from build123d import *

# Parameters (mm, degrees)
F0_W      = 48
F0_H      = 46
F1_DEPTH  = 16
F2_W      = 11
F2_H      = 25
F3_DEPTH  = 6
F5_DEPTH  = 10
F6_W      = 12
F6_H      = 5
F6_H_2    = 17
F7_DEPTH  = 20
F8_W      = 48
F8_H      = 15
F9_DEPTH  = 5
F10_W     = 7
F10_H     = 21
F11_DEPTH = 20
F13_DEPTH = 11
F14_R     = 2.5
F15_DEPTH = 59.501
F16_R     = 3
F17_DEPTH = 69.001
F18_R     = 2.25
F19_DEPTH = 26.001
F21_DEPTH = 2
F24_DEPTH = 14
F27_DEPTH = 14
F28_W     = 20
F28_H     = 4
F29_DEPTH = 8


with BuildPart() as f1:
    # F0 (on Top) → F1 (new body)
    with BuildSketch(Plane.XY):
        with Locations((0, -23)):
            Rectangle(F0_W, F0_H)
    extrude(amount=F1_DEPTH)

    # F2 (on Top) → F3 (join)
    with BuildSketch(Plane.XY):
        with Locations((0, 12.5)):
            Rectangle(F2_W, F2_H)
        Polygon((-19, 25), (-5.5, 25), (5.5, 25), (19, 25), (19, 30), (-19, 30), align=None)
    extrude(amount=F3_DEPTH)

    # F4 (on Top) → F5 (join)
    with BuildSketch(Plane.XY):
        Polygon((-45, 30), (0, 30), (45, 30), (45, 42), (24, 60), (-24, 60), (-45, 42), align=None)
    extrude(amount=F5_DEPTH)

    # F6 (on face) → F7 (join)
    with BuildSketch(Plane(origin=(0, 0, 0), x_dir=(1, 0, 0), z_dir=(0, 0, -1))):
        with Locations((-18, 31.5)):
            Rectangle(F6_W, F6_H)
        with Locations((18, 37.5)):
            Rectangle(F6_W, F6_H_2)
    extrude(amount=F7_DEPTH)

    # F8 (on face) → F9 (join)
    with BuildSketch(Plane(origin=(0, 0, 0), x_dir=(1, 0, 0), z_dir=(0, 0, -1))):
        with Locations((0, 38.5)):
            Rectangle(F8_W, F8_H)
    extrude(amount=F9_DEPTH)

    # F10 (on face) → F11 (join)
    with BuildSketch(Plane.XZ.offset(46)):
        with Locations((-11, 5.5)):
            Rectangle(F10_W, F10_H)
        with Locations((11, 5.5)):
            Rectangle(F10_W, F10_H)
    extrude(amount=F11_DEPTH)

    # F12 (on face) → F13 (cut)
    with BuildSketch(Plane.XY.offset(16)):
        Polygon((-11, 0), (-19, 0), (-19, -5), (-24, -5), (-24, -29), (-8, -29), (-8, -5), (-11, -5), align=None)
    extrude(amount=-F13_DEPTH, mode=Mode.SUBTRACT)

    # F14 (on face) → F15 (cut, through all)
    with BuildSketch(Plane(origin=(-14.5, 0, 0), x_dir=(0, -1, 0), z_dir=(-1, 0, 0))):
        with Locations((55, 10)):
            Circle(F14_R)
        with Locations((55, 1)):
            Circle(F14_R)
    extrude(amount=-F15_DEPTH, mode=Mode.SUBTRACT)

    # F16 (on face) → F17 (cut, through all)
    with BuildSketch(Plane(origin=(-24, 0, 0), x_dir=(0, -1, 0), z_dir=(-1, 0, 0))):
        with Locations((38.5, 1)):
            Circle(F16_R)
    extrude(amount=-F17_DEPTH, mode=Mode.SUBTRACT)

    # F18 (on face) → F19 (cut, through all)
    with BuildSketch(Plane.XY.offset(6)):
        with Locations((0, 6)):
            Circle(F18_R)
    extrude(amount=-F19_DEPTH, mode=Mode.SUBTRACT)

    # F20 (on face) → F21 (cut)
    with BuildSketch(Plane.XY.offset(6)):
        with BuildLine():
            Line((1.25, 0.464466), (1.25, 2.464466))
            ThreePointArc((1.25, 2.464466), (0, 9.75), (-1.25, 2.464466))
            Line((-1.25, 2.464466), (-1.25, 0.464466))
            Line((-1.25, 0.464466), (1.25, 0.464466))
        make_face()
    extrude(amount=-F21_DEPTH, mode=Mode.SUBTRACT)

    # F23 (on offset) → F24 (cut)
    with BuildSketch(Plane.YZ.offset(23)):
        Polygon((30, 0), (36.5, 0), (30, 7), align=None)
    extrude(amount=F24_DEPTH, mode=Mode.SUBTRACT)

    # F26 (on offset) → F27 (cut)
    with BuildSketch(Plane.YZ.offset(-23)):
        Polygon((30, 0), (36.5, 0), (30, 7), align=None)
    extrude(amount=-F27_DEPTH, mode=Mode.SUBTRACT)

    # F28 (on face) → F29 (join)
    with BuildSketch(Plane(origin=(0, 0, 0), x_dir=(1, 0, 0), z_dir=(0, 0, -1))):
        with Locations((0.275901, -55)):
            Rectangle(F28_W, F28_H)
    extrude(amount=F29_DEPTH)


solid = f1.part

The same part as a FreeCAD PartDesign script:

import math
import FreeCAD as App
import Part
import Sketcher
from FreeCAD import Vector


def add_polygon(sketch, points):
    """Adds a closed chain of lines whose ends are joined by coincident constraints."""
    first, n = sketch.GeometryCount, len(points)
    for a, b in zip(points, points[1:] + points[:1]):
        sketch.addGeometry(Part.LineSegment(App.Vector(*a, 0), App.Vector(*b, 0)), False)
    for i in range(n):
        sketch.addConstraint(Sketcher.Constraint("Coincident", first + i, 2, first + (i + 1) % n, 1))

doc = App.newDocument("Part")
body = doc.addObject("PartDesign::Body", "Body")

sketch1 = body.newObject("Sketcher::SketchObject", "Sketch")
sketch1.AttachmentSupport = (doc.getObject("XY_Plane"), [""])
sketch1.MapMode = "FlatFace"
add_polygon(sketch1, [(-24, 0), (-24, -46), (24, -46), (24, 0)])
sketch1.addConstraint(Sketcher.Constraint("Vertical", 0))
sketch1.addConstraint(Sketcher.Constraint("Horizontal", 1))
sketch1.addConstraint(Sketcher.Constraint("Vertical", 2))
sketch1.addConstraint(Sketcher.Constraint("Horizontal", 3))
sketch1.addConstraint(Sketcher.Constraint("Symmetric", 2, 2, 3, 2, -1, 1))
sketch1.addConstraint(Sketcher.Constraint("DistanceX", 1, 1, 1, 2, 48.0))
sketch1.addConstraint(Sketcher.Constraint("DistanceY", 0, 2, 0, 1, 46.0))
pad1 = body.newObject("PartDesign::Pad", "Pad")
pad1.Profile = sketch1
pad1.Length = 16

sketch2 = body.newObject("Sketcher::SketchObject", "Sketch001")
sketch2.AttachmentSupport = (doc.getObject("XY_Plane"), [""])
sketch2.MapMode = "FlatFace"
add_polygon(sketch2, [(-5.5, 25), (-5.5, 0), (5.5, 0), (5.5, 25), (19, 25), (19, 30), (-19, 30), (-19, 25)])
sketch2.addConstraint(Sketcher.Constraint("Vertical", 0))
sketch2.addConstraint(Sketcher.Constraint("Horizontal", 1))
sketch2.addConstraint(Sketcher.Constraint("Vertical", 2))
sketch2.addConstraint(Sketcher.Constraint("Horizontal", 3))
sketch2.addConstraint(Sketcher.Constraint("Vertical", 4))
sketch2.addConstraint(Sketcher.Constraint("Horizontal", 5))
sketch2.addConstraint(Sketcher.Constraint("Vertical", 6))
sketch2.addConstraint(Sketcher.Constraint("Horizontal", 7))
sketch2.addConstraint(Sketcher.Constraint("Symmetric", 0, 2, 1, 2, -1, 1))
sketch2.addConstraint(Sketcher.Constraint("Symmetric", 3, 2, 6, 2, -2))
sketch2.addConstraint(Sketcher.Constraint("DistanceX", 1, 1, 1, 2, 11.0))
sketch2.addConstraint(Sketcher.Constraint("DistanceX", 5, 2, 5, 1, 38.0))
sketch2.addConstraint(Sketcher.Constraint("DistanceY", 0, 2, 0, 1, 25.0))
sketch2.addConstraint(Sketcher.Constraint("DistanceY", 4, 1, 4, 2, 5.0))
pad2 = body.newObject("PartDesign::Pad", "Pad001")
pad2.Profile = sketch2
pad2.Length = 6

sketch3 = body.newObject("Sketcher::SketchObject", "Sketch002")
sketch3.AttachmentSupport = (doc.getObject("XY_Plane"), [""])
sketch3.MapMode = "FlatFace"
add_polygon(sketch3, [(-45, 30), (45, 30), (45, 42), (24, 60), (-24, 60), (-45, 42)])
sketch3.addConstraint(Sketcher.Constraint("Horizontal", 0))
sketch3.addConstraint(Sketcher.Constraint("Vertical", 1))
sketch3.addConstraint(Sketcher.Constraint("Horizontal", 3))
sketch3.addConstraint(Sketcher.Constraint("Vertical", 5))
sketch3.addConstraint(Sketcher.Constraint("Symmetric", 1, 2, 4, 2, -2))
sketch3.addConstraint(Sketcher.Constraint("Equal", 2, 4))
sketch3.addConstraint(Sketcher.Constraint("DistanceX", 0, 1, 0, 2, 90.0))
sketch3.addConstraint(Sketcher.Constraint("DistanceX", 3, 2, 3, 1, 48.0))
sketch3.addConstraint(Sketcher.Constraint("DistanceY", 1, 1, 1, 2, 12.0))
sketch3.addConstraint(Sketcher.Constraint("DistanceY", -1, 1, 0, 2, 30.0))
sketch3.addConstraint(Sketcher.Constraint("DistanceY", -1, 1, 2, 2, 60.0))
pad3 = body.newObject("PartDesign::Pad", "Pad002")
pad3.Profile = sketch3
pad3.Length = 10

sketch4 = body.newObject("Sketcher::SketchObject", "Sketch003")
sketch4.AttachmentSupport = (doc.getObject("XY_Plane"), [""])
sketch4.MapMode = "FlatFace"
add_polygon(sketch4, [(-24, -34), (-24, -29), (-12, -29), (-12, -34)])
add_polygon(sketch4, [(12, -46), (12, -29), (24, -29), (24, -46)])
sketch4.addConstraint(Sketcher.Constraint("Vertical", 0))
sketch4.addConstraint(Sketcher.Constraint("Horizontal", 1))
sketch4.addConstraint(Sketcher.Constraint("Vertical", 2))
sketch4.addConstraint(Sketcher.Constraint("Horizontal", 3))
sketch4.addConstraint(Sketcher.Constraint("Vertical", 4))
sketch4.addConstraint(Sketcher.Constraint("Horizontal", 5))
sketch4.addConstraint(Sketcher.Constraint("Vertical", 6))
sketch4.addConstraint(Sketcher.Constraint("Horizontal", 7))
sketch4.addConstraint(Sketcher.Constraint("Symmetric", 1, 2, 4, 2, -2))
sketch4.addConstraint(Sketcher.Constraint("Equal", 3, 5))
sketch4.addConstraint(Sketcher.Constraint("DistanceX", 1, 1, 1, 2, 12.0))
sketch4.addConstraint(Sketcher.Constraint("DistanceY", 0, 1, 0, 2, 5.0))
sketch4.addConstraint(Sketcher.Constraint("DistanceY", 4, 1, 4, 2, 17.0))
sketch4.addConstraint(Sketcher.Constraint("DistanceX", 0, 2, -1, 1, 24.0))
sketch4.addConstraint(Sketcher.Constraint("DistanceY", 0, 2, -1, 1, 29.0))
pad4 = body.newObject("PartDesign::Pad", "Pad003")
pad4.Profile = sketch4
pad4.Length = 20
pad4.Reversed = True

sketch5 = body.newObject("Sketcher::SketchObject", "Sketch004")
sketch5.AttachmentSupport = (doc.getObject("XY_Plane"), [""])
sketch5.MapMode = "FlatFace"
add_polygon(sketch5, [(-24, -46), (-24, -31), (24, -31), (24, -46)])
sketch5.addConstraint(Sketcher.Constraint("Vertical", 0))
sketch5.addConstraint(Sketcher.Constraint("Horizontal", 1))
sketch5.addConstraint(Sketcher.Constraint("Vertical", 2))
sketch5.addConstraint(Sketcher.Constraint("Horizontal", 3))
sketch5.addConstraint(Sketcher.Constraint("DistanceX", 1, 1, 1, 2, 48.0))
sketch5.addConstraint(Sketcher.Constraint("DistanceY", 0, 1, 0, 2, 15.0))
sketch5.addConstraint(Sketcher.Constraint("DistanceX", 0, 2, -1, 1, 24.0))
sketch5.addConstraint(Sketcher.Constraint("DistanceY", 0, 2, -1, 1, 31.0))
pad5 = body.newObject("PartDesign::Pad", "Pad004")
pad5.Profile = sketch5
pad5.Length = 5
pad5.Reversed = True

sketch6 = body.newObject("Sketcher::SketchObject", "Sketch005")
sketch6.AttachmentSupport = (doc.getObject("XZ_Plane"), [""])
sketch6.MapMode = "FlatFace"
sketch6.AttachmentOffset = App.Placement(Vector(0, 0, 46), App.Rotation())
add_polygon(sketch6, [(-14.5, 16), (-14.5, -5), (-7.5, -5), (-7.5, 16)])
add_polygon(sketch6, [(7.5, 16), (7.5, -5), (14.5, -5), (14.5, 16)])
sketch6.addConstraint(Sketcher.Constraint("Vertical", 0))
sketch6.addConstraint(Sketcher.Constraint("Horizontal", 1))
sketch6.addConstraint(Sketcher.Constraint("Vertical", 2))
sketch6.addConstraint(Sketcher.Constraint("Horizontal", 3))
sketch6.addConstraint(Sketcher.Constraint("Vertical", 4))
sketch6.addConstraint(Sketcher.Constraint("Horizontal", 5))
sketch6.addConstraint(Sketcher.Constraint("Vertical", 6))
sketch6.addConstraint(Sketcher.Constraint("Horizontal", 7))
sketch6.addConstraint(Sketcher.Constraint("Symmetric", 1, 2, 4, 2, -2))
sketch6.addConstraint(Sketcher.Constraint("Symmetric", 3, 2, 6, 2, -2))
sketch6.addConstraint(Sketcher.Constraint("DistanceX", 1, 1, 1, 2, 7.0))
sketch6.addConstraint(Sketcher.Constraint("DistanceY", 0, 2, 0, 1, 21.0))
sketch6.addConstraint(Sketcher.Constraint("DistanceY", 0, 2, -1, 1, 5.0))
sketch6.addConstraint(Sketcher.Constraint("DistanceX", 1, 2, 4, 2, 15.0))
pad6 = body.newObject("PartDesign::Pad", "Pad005")
pad6.Profile = sketch6
pad6.Length = 20

sketch7 = body.newObject("Sketcher::SketchObject", "Sketch006")
sketch7.AttachmentSupport = (doc.getObject("XY_Plane"), [""])
sketch7.MapMode = "FlatFace"
sketch7.AttachmentOffset = App.Placement(Vector(0, 0, 16), App.Rotation())
add_polygon(sketch7, [(-11, 0), (-19, 0), (-19, -5), (-24, -5), (-24, -29), (-8, -29), (-8, -5), (-11, -5)])
sketch7.addConstraint(Sketcher.Constraint("Horizontal", 0))
sketch7.addConstraint(Sketcher.Constraint("Vertical", 1))
sketch7.addConstraint(Sketcher.Constraint("Horizontal", 2))
sketch7.addConstraint(Sketcher.Constraint("Vertical", 3))
sketch7.addConstraint(Sketcher.Constraint("Horizontal", 4))
sketch7.addConstraint(Sketcher.Constraint("Vertical", 5))
sketch7.addConstraint(Sketcher.Constraint("Horizontal", 6))
sketch7.addConstraint(Sketcher.Constraint("Vertical", 7))
sketch7.addConstraint(Sketcher.Constraint("PointOnObject", 0, 2, -1))
sketch7.addConstraint(Sketcher.Constraint("Horizontal", 2, 2, 5, 2))
sketch7.addConstraint(Sketcher.Constraint("Equal", 2, 1))
sketch7.addConstraint(Sketcher.Constraint("DistanceX", 0, 2, 0, 1, 8.0))
sketch7.addConstraint(Sketcher.Constraint("DistanceX", 2, 2, 2, 1, 5.0))
sketch7.addConstraint(Sketcher.Constraint("DistanceX", 4, 1, 4, 2, 16.0))
sketch7.addConstraint(Sketcher.Constraint("DistanceY", 3, 2, 3, 1, 24.0))
sketch7.addConstraint(Sketcher.Constraint("DistanceX", 0, 2, -1, 1, 19.0))
pocket1 = body.newObject("PartDesign::Pocket", "Pocket")
pocket1.Profile = sketch7
pocket1.Length = 11

sketch8 = body.newObject("Sketcher::SketchObject", "Sketch007")
sketch8.AttachmentSupport = (doc.getObject("YZ_Plane"), [""])
sketch8.MapMode = "FlatFace"
sketch8.AttachmentOffset = App.Placement(Vector(0, 0, -14.5), App.Rotation())
sketch8.addGeometry(Part.Circle(Vector(-55, 10, 0), Vector(0, 0, 1), 2.5), False)
sketch8.addGeometry(Part.Circle(Vector(-55, 1, 0), Vector(0, 0, 1), 2.5), False)
sketch8.addConstraint(Sketcher.Constraint("Equal", 0, 1))
sketch8.addConstraint(Sketcher.Constraint("Vertical", 0, 3, 1, 3))
sketch8.addConstraint(Sketcher.Constraint("Diameter", 0, 5.0))
sketch8.addConstraint(Sketcher.Constraint("DistanceX", 0, 3, -1, 1, 55.0))
sketch8.addConstraint(Sketcher.Constraint("DistanceY", -1, 1, 0, 3, 10.0))
sketch8.addConstraint(Sketcher.Constraint("DistanceY", -1, 1, 1, 3, 1.0))
pocket2 = body.newObject("PartDesign::Pocket", "Pocket001")
pocket2.Profile = sketch8
pocket2.Type = "ThroughAll"
pocket2.Reversed = True

sketch9 = body.newObject("Sketcher::SketchObject", "Sketch008")
sketch9.AttachmentSupport = (doc.getObject("YZ_Plane"), [""])
sketch9.MapMode = "FlatFace"
sketch9.AttachmentOffset = App.Placement(Vector(0, 0, -24), App.Rotation())
sketch9.addGeometry(Part.Circle(Vector(-38.5, 1, 0), Vector(0, 0, 1), 3), False)
sketch9.addConstraint(Sketcher.Constraint("Diameter", 0, 6.0))
sketch9.addConstraint(Sketcher.Constraint("DistanceY", -1, 1, 0, 3, 1.0))
sketch9.addConstraint(Sketcher.Constraint("DistanceX", 0, 3, -1, 1, 38.5))
pocket3 = body.newObject("PartDesign::Pocket", "Pocket002")
pocket3.Profile = sketch9
pocket3.Type = "ThroughAll"
pocket3.Reversed = True

sketch10 = body.newObject("Sketcher::SketchObject", "Sketch009")
sketch10.AttachmentSupport = (doc.getObject("XY_Plane"), [""])
sketch10.MapMode = "FlatFace"
sketch10.AttachmentOffset = App.Placement(Vector(0, 0, 6), App.Rotation())
sketch10.addGeometry(Part.Circle(Vector(0, 6, 0), Vector(0, 0, 1), 2.25), False)
sketch10.addConstraint(Sketcher.Constraint("PointOnObject", 0, 3, -2))
sketch10.addConstraint(Sketcher.Constraint("Diameter", 0, 4.5))
sketch10.addConstraint(Sketcher.Constraint("DistanceY", -1, 1, 0, 3, 6.0))
pocket4 = body.newObject("PartDesign::Pocket", "Pocket003")
pocket4.Profile = sketch10
pocket4.Type = "ThroughAll"

sketch11 = body.newObject("Sketcher::SketchObject", "Sketch010")
sketch11.AttachmentSupport = (doc.getObject("XY_Plane"), [""])
sketch11.MapMode = "FlatFace"
sketch11.AttachmentOffset = App.Placement(Vector(0, 0, 6), App.Rotation())
sketch11.addGeometry(Part.LineSegment(Vector(1.25, 0.464466, 0), Vector(1.25, 2.464466, 0)), False)
sketch11.addGeometry(Part.ArcOfCircle(Part.Circle(Vector(0, 6, 0), Vector(0, 0, 1), 3.75), math.radians(-70.52878), math.radians(250.52878)), False)
sketch11.addGeometry(Part.LineSegment(Vector(-1.25, 2.464466, 0), Vector(-1.25, 0.464466, 0)), False)
sketch11.addGeometry(Part.LineSegment(Vector(-1.25, 0.464466, 0), Vector(1.25, 0.464466, 0)), False)
sketch11.addConstraint(Sketcher.Constraint("Coincident", 0, 2, 1, 1))
sketch11.addConstraint(Sketcher.Constraint("Coincident", 1, 2, 2, 1))
sketch11.addConstraint(Sketcher.Constraint("Coincident", 2, 2, 3, 1))
sketch11.addConstraint(Sketcher.Constraint("Coincident", 3, 2, 0, 1))
sketch11.addConstraint(Sketcher.Constraint("Vertical", 0))
sketch11.addConstraint(Sketcher.Constraint("Vertical", 2))
sketch11.addConstraint(Sketcher.Constraint("Horizontal", 3))
sketch11.addConstraint(Sketcher.Constraint("Symmetric", 0, 2, 1, 2, -2))
sketch11.addConstraint(Sketcher.Constraint("DistanceY", 0, 1, 0, 2, 2.0))
sketch11.addConstraint(Sketcher.Constraint("Radius", 1, 3.75))
sketch11.addConstraint(Sketcher.Constraint("DistanceX", 3, 1, 3, 2, 2.5))
sketch11.addConstraint(Sketcher.Constraint("DistanceY", -1, 1, 1, 3, 6.0))
pocket5 = body.newObject("PartDesign::Pocket", "Pocket004")
pocket5.Profile = sketch11
pocket5.Length = 2

sketch12 = body.newObject("Sketcher::SketchObject", "Sketch011")
sketch12.AttachmentSupport = (doc.getObject("YZ_Plane"), [""])
sketch12.MapMode = "FlatFace"
sketch12.AttachmentOffset = App.Placement(Vector(0, 0, 23), App.Rotation())
add_polygon(sketch12, [(30, 0), (36.5, 0), (30, 7)])
sketch12.addConstraint(Sketcher.Constraint("Horizontal", 0))
sketch12.addConstraint(Sketcher.Constraint("Vertical", 2))
sketch12.addConstraint(Sketcher.Constraint("PointOnObject", 0, 2, -1))
sketch12.addConstraint(Sketcher.Constraint("DistanceY", 2, 2, 2, 1, 7.0))
sketch12.addConstraint(Sketcher.Constraint("DistanceX", 0, 1, 0, 2, 6.5))
sketch12.addConstraint(Sketcher.Constraint("DistanceX", -1, 1, 1, 2, 30.0))
pocket6 = body.newObject("PartDesign::Pocket", "Pocket005")
pocket6.Profile = sketch12
pocket6.Length = 14
pocket6.Reversed = True

sketch13 = body.newObject("Sketcher::SketchObject", "Sketch012")
sketch13.AttachmentSupport = (doc.getObject("YZ_Plane"), [""])
sketch13.MapMode = "FlatFace"
sketch13.AttachmentOffset = App.Placement(Vector(0, 0, -23), App.Rotation())
add_polygon(sketch13, [(30, 0), (36.5, 0), (30, 7)])
sketch13.addConstraint(Sketcher.Constraint("Horizontal", 0))
sketch13.addConstraint(Sketcher.Constraint("Vertical", 2))
sketch13.addConstraint(Sketcher.Constraint("PointOnObject", 0, 2, -1))
sketch13.addConstraint(Sketcher.Constraint("DistanceY", 2, 2, 2, 1, 7.0))
sketch13.addConstraint(Sketcher.Constraint("DistanceX", 0, 1, 0, 2, 6.5))
sketch13.addConstraint(Sketcher.Constraint("DistanceX", -1, 1, 1, 2, 30.0))
pocket7 = body.newObject("PartDesign::Pocket", "Pocket006")
pocket7.Profile = sketch13
pocket7.Length = 14

sketch14 = body.newObject("Sketcher::SketchObject", "Sketch013")
sketch14.AttachmentSupport = (doc.getObject("XY_Plane"), [""])
sketch14.MapMode = "FlatFace"
add_polygon(sketch14, [(-9.724099, 53), (-9.724099, 57), (10.275901, 57), (10.275901, 53)])
sketch14.addConstraint(Sketcher.Constraint("Vertical", 0))
sketch14.addConstraint(Sketcher.Constraint("Horizontal", 1))
sketch14.addConstraint(Sketcher.Constraint("Vertical", 2))
sketch14.addConstraint(Sketcher.Constraint("Horizontal", 3))
sketch14.addConstraint(Sketcher.Constraint("DistanceX", 1, 1, 1, 2, 20.0))
sketch14.addConstraint(Sketcher.Constraint("DistanceY", 0, 1, 0, 2, 4.0))
sketch14.addConstraint(Sketcher.Constraint("DistanceY", -1, 1, 0, 2, 57.0))
sketch14.addConstraint(Sketcher.Constraint("DistanceX", 0, 2, -1, 1, 9.724099))
pad7 = body.newObject("PartDesign::Pad", "Pad006")
pad7.Profile = sketch14
pad7.Length = 8
pad7.Reversed = True

doc.recompute()
